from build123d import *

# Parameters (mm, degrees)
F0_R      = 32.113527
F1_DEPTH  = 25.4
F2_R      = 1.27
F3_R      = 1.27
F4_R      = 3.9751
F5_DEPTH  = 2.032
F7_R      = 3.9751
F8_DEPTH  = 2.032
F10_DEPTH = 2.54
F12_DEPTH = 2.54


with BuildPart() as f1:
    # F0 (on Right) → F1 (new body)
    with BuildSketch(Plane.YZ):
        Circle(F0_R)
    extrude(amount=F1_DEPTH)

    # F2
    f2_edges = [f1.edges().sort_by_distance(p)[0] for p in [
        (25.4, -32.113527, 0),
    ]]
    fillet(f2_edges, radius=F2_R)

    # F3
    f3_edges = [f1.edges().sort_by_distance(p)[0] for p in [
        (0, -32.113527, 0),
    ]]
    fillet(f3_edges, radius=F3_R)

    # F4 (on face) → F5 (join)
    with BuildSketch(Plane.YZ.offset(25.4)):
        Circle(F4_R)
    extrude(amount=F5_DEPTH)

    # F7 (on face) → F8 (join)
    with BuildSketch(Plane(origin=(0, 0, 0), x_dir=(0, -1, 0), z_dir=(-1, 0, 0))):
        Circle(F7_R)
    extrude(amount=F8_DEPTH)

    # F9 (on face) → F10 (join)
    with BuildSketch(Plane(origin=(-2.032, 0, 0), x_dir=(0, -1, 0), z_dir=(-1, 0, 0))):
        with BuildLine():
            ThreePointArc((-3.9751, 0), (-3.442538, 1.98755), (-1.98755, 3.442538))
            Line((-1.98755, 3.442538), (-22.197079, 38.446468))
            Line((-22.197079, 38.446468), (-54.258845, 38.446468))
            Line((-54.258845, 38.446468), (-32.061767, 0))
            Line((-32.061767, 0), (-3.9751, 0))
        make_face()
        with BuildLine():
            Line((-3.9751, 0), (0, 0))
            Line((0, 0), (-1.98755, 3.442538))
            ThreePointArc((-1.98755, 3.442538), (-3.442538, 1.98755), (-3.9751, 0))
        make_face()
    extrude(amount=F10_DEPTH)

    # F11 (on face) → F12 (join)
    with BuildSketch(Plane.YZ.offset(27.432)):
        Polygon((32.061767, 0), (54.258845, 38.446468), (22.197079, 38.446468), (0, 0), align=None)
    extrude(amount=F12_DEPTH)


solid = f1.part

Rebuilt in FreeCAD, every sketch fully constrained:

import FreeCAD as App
import Part
import Sketcher
Q = App.Units.Quantity


def edges_at(feature, points):
    """Names of the edges that pass closest to the given points."""
    edges = feature.Shape.Edges
    near = lambda p: min(range(len(edges)), key=lambda i: edges[i].distToShape(Part.Vertex(*p))[0])
    return sorted({f"Edge{near(p) + 1}" for p in points})

doc = App.newDocument("Part")
params = doc.addObject("Spreadsheet::Sheet", "Params")
for row, (alias, value) in enumerate([
    ("pad1_length", "1 in"),
    ("fillet_radius", "0.05 in"),
    ("fillet2_radius", "0.05 in"),
    ("sketch2_diameter", "0.313 in"),
    ("pad2_length", "0.08 in"),
    ("sketch3_diameter", "0.313 in"),
    ("pad3_length", "0.08 in"),
    ("pad4_length", "0.1 in"),
    ("pad5_length", "0.1 in"),
], start=1):
    params.set(f"A{row}", alias)
    params.set(f"B{row}", "=" + value)
    params.setAlias(f"B{row}", alias)

body = doc.addObject("PartDesign::Body", "Body")

# Sketch on YZ plane
sketch1 = body.newObject("Sketcher::SketchObject", "Sketch")
sketch1.AttachmentSupport = (doc.getObject("YZ_Plane"), [""])
sketch1.MapMode = "FlatFace"
sketch1.addGeometry(Part.Circle(App.Vector(0, 0, 0), App.Vector(0, 0, 1), 32), False)
sketch1.addConstraint([
    Sketcher.Constraint("Coincident", 0, 3, -1, 1),
    Sketcher.Constraint("Diameter", 0, 64.227054),
])
pad1 = body.newObject("PartDesign::Pad", "Pad")
pad1.Profile = sketch1
pad1.setExpression("Length", "Params.pad1_length")
doc.recompute()

fillet = body.newObject("PartDesign::Fillet", "Fillet")
fillet.Base = (pad1, edges_at(pad1, [(25.4, -32.114, 0)]))
fillet.setExpression("Radius", "Params.fillet_radius")
doc.recompute()

fillet2 = body.newObject("PartDesign::Fillet", "Fillet001")
fillet2.Base = (fillet, edges_at(fillet, [(0, -32.114, 0)]))
fillet2.setExpression("Radius", "Params.fillet2_radius")

# Sketch on YZ plane
sketch2 = body.newObject("Sketcher::SketchObject", "Sketch001")
sketch2.AttachmentSupport = (doc.getObject("YZ_Plane"), [""])
sketch2.MapMode = "FlatFace"
sketch2.AttachmentOffset = App.Placement(App.Vector(0, 0, 1 * 25.4), App.Rotation())
sketch2.addGeometry(Part.Circle(App.Vector(0, 0, 0), App.Vector(0, 0, 1), 4), False)
sketch2.addConstraint([
    Sketcher.Constraint("Coincident", 0, 3, -1, 1),
    Sketcher.Constraint("Diameter", 0, Q("0.313 in")),
])
sketch2.setExpression("Constraints[1]", "Params.sketch2_diameter")
pad2 = body.newObject("PartDesign::Pad", "Pad001")
pad2.Profile = sketch2
pad2.setExpression("Length", "Params.pad2_length")

# Sketch on YZ plane
sketch3 = body.newObject("Sketcher::SketchObject", "Sketch002")
sketch3.AttachmentSupport = (doc.getObject("YZ_Plane"), [""])
sketch3.MapMode = "FlatFace"
sketch3.addGeometry(Part.Circle(App.Vector(0, 0, 0), App.Vector(0, 0, 1), 4), False)
sketch3.addConstraint([
    Sketcher.Constraint("Coincident", 0, 3, -1, 1),
    Sketcher.Constraint("Diameter", 0, Q("0.313 in")),
])
sketch3.setExpression("Constraints[1]", "Params.sketch3_diameter")
pad3 = body.newObject("PartDesign::Pad", "Pad002")
pad3.Profile = sketch3
pad3.setExpression("Length", "Params.pad3_length")
pad3.Reversed = True

# Sketch on YZ plane
sketch4 = body.newObject("Sketcher::SketchObject", "Sketch003")
sketch4.AttachmentSupport = (doc.getObject("YZ_Plane"), [""])
sketch4.MapMode = "FlatFace"
sketch4.AttachmentOffset = App.Placement(App.Vector(0, 0, -0.08 * 25.4), App.Rotation())
sketch4.addGeometry([
    Part.LineSegment(App.Vector(2, 3.4, 0), App.Vector(22.2, 38.4, 0)),  # 0
    Part.LineSegment(App.Vector(22.2, 38.4, 0), App.Vector(54.3, 38.4, 0)),  # 1
    Part.LineSegment(App.Vector(54.3, 38.4, 0), App.Vector(32.1, 0, 0)),  # 2
    Part.LineSegment(App.Vector(32.1, 0, 0), App.Vector(0, 0, 0)),  # 3
    Part.LineSegment(App.Vector(0, 0, 0), App.Vector(2, 3.4, 0)),  # 4
], False)
sketch4.addConstraint([
    Sketcher.Constraint("Coincident", 0, 2, 1, 1),
    Sketcher.Constraint("Coincident", 1, 2, 2, 1),
    Sketcher.Constraint("Coincident", 2, 2, 3, 1),
    Sketcher.Constraint("Coincident", 3, 2, 4, 1),
    Sketcher.Constraint("Coincident", 4, 2, 0, 1),
    Sketcher.Constraint("Horizontal", 1),
    Sketcher.Constraint("Horizontal", 3),
    Sketcher.Constraint("Coincident", 3, 2, -1, 1),
    Sketcher.Constraint("Parallel", 0, 2),
    Sketcher.Constraint("Parallel", 2, 4),
    Sketcher.Constraint("Angle", 0, Q("59.999999 deg")),
    Sketcher.Constraint("Distance", 4, Q("0.1565 in")),
    Sketcher.Constraint("DistanceX", 1, 1, 1, 2, 32.061766),
    Sketcher.Constraint("DistanceX", -1, 1, 0, 2, 22.197079),
])
pad4 = body.newObject("PartDesign::Pad", "Pad003")
pad4.Profile = sketch4
pad4.setExpression("Length", "Params.pad4_length")
pad4.Reversed = True

# Sketch on YZ plane
sketch5 = body.newObject("Sketcher::SketchObject", "Sketch004")
sketch5.AttachmentSupport = (doc.getObject("YZ_Plane"), [""])
sketch5.MapMode = "FlatFace"
sketch5.AttachmentOffset = App.Placement(App.Vector(0, 0, 1.08 * 25.4), App.Rotation())
sketch5.addGeometry([
    Part.LineSegment(App.Vector(32, 0, 0), App.Vector(54, 38, 0)),
    Part.LineSegment(App.Vector(54, 38, 0), App.Vector(22, 38, 0)),
    Part.LineSegment(App.Vector(22, 38, 0), App.Vector(0, 0, 0)),
    Part.LineSegment(App.Vector(0, 0, 0), App.Vector(32, 0, 0)),
], False)
sketch5.addConstraint([
    Sketcher.Constraint("Coincident", 0, 2, 1, 1),
    Sketcher.Constraint("Coincident", 1, 2, 2, 1),
    Sketcher.Constraint("Coincident", 2, 2, 3, 1),
    Sketcher.Constraint("Coincident", 3, 2, 0, 1),
    Sketcher.Constraint("Horizontal", 1),
    Sketcher.Constraint("Horizontal", 3),
    Sketcher.Constraint("Coincident", 2, 2, -1, 1),
    Sketcher.Constraint("Parallel", 0, 2),
    Sketcher.Constraint("Angle", 0, Q("60.000001 deg")),
    Sketcher.Constraint("DistanceX", 1, 2, 1, 1, 32.061766),
    Sketcher.Constraint("DistanceY", -1, 1, 0, 2, 38.446468),
])
pad5 = body.newObject("PartDesign::Pad", "Pad004")
pad5.Profile = sketch5
pad5.setExpression("Length", "Params.pad5_length")

doc.recompute()
